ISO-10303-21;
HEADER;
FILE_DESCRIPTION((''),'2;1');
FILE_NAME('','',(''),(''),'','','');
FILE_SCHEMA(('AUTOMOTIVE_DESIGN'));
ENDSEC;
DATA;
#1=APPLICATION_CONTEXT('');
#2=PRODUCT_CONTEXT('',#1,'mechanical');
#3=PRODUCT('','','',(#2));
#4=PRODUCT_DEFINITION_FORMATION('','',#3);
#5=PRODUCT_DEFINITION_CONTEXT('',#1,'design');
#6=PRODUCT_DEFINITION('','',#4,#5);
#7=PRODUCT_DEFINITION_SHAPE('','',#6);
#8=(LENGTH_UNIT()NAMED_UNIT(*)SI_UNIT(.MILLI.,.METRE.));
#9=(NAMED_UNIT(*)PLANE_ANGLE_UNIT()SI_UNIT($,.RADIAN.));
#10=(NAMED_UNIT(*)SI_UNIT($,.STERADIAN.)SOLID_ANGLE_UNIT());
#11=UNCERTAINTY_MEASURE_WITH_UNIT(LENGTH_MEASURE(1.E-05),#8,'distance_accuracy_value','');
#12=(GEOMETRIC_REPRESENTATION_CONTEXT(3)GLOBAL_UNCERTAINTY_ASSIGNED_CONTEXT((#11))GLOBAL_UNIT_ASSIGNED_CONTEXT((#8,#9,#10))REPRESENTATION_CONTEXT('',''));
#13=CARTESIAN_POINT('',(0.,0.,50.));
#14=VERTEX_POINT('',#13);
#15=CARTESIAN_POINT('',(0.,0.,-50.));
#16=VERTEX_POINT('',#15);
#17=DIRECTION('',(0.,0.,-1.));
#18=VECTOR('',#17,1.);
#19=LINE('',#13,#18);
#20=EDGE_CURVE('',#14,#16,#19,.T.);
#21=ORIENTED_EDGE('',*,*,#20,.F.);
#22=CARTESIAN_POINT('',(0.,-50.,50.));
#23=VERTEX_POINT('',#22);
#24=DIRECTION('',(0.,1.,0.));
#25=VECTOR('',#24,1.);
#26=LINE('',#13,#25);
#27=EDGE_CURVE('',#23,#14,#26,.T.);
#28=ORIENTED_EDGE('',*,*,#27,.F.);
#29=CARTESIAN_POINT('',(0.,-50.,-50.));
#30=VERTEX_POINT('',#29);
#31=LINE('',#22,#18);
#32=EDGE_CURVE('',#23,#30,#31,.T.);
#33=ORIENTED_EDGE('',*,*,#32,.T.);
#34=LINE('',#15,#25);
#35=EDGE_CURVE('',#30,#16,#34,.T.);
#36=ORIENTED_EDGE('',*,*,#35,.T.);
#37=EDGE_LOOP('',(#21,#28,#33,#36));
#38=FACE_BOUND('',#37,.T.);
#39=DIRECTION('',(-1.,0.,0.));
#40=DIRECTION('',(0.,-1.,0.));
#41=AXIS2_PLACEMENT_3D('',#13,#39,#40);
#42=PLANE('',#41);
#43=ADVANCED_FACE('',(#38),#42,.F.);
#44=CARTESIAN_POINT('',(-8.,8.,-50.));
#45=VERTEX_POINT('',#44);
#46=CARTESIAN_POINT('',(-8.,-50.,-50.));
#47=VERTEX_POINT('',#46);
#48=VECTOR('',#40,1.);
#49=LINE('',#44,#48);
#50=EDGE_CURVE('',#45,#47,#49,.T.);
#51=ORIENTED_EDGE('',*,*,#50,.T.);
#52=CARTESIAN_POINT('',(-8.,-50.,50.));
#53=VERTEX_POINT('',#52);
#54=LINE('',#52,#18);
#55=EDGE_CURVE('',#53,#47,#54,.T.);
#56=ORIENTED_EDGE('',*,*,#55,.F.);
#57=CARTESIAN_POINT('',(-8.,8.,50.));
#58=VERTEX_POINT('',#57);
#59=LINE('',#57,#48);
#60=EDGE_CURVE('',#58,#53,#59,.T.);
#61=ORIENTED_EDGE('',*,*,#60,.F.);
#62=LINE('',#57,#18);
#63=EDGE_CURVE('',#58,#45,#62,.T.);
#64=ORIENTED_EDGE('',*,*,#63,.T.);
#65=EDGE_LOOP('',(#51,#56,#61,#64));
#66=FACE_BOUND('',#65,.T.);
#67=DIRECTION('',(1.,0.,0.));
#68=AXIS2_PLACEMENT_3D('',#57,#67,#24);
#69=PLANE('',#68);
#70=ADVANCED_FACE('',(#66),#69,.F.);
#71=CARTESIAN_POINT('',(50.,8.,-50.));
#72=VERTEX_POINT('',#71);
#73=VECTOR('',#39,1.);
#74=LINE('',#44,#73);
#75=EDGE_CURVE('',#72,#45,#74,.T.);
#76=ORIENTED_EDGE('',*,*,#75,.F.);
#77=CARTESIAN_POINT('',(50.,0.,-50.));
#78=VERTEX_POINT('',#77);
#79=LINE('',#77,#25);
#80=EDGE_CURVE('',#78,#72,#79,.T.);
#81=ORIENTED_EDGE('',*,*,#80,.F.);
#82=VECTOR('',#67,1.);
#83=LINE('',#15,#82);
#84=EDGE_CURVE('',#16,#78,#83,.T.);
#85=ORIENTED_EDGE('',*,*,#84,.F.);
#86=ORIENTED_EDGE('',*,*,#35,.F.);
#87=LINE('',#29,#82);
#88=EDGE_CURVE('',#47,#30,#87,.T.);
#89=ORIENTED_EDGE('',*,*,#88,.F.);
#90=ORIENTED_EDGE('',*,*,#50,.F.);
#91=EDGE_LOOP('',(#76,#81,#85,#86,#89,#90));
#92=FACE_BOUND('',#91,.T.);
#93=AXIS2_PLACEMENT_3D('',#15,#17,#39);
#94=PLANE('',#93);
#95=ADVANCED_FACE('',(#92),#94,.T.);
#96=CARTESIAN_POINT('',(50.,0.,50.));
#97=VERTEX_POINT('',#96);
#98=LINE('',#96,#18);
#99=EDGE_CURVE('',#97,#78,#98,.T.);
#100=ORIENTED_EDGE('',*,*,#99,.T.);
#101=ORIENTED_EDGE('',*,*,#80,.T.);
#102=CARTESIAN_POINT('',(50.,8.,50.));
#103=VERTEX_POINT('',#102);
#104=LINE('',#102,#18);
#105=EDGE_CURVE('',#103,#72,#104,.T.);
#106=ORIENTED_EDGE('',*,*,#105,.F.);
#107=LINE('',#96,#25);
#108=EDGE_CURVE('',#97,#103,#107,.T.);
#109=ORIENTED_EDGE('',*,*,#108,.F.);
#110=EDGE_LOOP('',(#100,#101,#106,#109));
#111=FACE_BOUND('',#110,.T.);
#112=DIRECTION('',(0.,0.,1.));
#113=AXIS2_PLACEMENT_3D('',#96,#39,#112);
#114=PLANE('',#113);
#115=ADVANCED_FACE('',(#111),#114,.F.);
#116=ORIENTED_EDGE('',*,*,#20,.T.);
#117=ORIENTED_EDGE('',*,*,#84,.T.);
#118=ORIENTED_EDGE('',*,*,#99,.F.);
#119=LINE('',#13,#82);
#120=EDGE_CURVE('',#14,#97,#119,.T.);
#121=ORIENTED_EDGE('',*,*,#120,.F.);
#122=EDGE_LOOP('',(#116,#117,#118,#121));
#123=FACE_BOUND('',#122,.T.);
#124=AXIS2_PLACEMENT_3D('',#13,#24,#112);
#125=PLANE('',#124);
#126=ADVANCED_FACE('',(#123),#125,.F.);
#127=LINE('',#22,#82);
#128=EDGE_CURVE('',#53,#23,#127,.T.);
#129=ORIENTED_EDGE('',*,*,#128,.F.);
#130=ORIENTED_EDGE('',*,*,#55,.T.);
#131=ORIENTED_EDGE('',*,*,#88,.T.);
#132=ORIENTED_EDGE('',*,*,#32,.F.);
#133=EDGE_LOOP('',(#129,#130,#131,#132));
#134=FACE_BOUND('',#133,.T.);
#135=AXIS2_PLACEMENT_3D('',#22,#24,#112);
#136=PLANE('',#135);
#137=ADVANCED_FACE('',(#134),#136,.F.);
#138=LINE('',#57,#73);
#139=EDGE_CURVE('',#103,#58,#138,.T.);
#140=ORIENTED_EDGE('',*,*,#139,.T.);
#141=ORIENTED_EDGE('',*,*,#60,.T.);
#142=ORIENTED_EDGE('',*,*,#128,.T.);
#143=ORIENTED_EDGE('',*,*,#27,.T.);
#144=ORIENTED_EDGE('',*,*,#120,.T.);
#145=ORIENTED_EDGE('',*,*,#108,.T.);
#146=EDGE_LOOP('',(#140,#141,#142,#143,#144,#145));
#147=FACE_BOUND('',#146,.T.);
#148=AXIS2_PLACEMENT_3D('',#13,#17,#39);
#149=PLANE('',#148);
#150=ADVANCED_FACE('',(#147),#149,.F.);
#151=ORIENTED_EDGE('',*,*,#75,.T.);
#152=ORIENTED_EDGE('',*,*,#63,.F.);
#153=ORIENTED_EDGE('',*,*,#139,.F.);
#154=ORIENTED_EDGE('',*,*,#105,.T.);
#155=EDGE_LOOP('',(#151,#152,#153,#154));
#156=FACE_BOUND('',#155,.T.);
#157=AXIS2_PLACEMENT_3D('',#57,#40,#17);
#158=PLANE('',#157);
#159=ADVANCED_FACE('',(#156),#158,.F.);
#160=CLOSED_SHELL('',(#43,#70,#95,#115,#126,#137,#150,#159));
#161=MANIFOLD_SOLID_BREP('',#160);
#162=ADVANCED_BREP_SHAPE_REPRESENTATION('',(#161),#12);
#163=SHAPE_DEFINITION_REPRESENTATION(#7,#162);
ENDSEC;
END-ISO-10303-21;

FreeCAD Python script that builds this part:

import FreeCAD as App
import Part
import Sketcher


def add_polygon(sketch, points):
    """Adds a closed chain of lines whose ends are joined by coincident constraints."""
    first, n = sketch.GeometryCount, len(points)
    for a, b in zip(points, points[1:] + points[:1]):
        sketch.addGeometry(Part.LineSegment(App.Vector(*a, 0), App.Vector(*b, 0)), False)
    for i in range(n):
        sketch.addConstraint(Sketcher.Constraint("Coincident", first + i, 2, first + (i + 1) % n, 1))

doc = App.newDocument("Part")
body = doc.addObject("PartDesign::Body", "Body")

sketch1 = body.newObject("Sketcher::SketchObject", "Sketch")
sketch1.AttachmentSupport = (doc.getObject("XY_Plane"), [""])
sketch1.MapMode = "FlatFace"
add_polygon(sketch1, [(0, 0), (50, 0), (50, 8), (-8, 8), (-8, -50), (0, -50)])
sketch1.addConstraint([
    Sketcher.Constraint("Horizontal", 0),
    Sketcher.Constraint("Vertical", 1),
    Sketcher.Constraint("Horizontal", 2),
    Sketcher.Constraint("Vertical", 3),
    Sketcher.Constraint("Horizontal", 4),
    Sketcher.Constraint("Vertical", 5),
    Sketcher.Constraint("Coincident", 5, 2, -1, 1),
    Sketcher.Constraint("Equal", 4, 1),
    Sketcher.Constraint("Equal", 2, 3),
    Sketcher.Constraint("DistanceX", 0, 1, 0, 2, 50.0),
    Sketcher.Constraint("DistanceX", 2, 2, 2, 1, 58.0),
])
pad1 = body.newObject("PartDesign::Pad", "Pad")
pad1.Profile = sketch1
pad1.Length = 100
pad1.Midplane = True

doc.recompute()
